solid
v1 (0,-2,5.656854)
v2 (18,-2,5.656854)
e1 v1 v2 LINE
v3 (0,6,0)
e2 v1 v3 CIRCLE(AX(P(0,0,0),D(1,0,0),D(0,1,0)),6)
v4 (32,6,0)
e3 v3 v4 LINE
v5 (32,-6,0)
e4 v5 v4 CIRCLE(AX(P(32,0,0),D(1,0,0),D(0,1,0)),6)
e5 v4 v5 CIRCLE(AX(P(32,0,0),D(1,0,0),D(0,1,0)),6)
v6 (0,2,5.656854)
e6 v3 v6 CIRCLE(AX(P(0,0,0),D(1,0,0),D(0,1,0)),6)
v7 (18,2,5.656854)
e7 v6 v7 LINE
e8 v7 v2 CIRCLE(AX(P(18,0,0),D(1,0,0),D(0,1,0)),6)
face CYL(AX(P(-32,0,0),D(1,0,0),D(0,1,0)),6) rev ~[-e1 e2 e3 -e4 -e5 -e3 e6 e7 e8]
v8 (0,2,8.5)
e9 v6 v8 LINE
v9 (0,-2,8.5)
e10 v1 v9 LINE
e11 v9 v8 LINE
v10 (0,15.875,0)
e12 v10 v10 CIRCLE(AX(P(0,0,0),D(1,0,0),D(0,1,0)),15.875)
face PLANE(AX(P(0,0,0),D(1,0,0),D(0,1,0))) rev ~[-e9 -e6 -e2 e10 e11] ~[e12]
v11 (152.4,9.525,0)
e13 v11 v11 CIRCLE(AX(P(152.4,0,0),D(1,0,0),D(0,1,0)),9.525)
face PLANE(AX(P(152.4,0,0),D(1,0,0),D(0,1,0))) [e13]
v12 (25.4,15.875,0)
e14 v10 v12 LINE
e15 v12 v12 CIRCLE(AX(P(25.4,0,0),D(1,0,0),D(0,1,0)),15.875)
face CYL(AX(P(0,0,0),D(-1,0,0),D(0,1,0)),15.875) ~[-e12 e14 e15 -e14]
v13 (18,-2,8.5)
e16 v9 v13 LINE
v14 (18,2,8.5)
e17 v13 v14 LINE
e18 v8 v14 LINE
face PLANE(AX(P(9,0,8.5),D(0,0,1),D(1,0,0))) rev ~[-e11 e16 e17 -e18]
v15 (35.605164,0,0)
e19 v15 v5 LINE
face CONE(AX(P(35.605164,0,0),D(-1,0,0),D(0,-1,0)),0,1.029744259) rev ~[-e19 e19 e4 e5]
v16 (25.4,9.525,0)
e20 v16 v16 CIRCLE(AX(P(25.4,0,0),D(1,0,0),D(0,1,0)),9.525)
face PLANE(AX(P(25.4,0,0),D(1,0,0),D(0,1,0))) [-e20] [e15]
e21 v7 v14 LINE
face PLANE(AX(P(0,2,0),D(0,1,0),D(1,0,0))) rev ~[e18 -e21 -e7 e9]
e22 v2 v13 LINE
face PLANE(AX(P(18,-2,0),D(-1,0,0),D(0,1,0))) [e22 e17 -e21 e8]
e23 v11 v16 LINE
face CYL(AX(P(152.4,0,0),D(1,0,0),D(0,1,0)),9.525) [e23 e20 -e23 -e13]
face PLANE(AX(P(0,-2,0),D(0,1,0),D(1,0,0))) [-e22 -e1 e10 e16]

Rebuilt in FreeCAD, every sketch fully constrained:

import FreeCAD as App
import Part
import Sketcher


def add_polygon(sketch, points):
    """Adds a closed chain of lines whose ends are joined by coincident constraints."""
    first, n = sketch.GeometryCount, len(points)
    for a, b in zip(points, points[1:] + points[:1]):
        sketch.addGeometry(Part.LineSegment(App.Vector(*a, 0), App.Vector(*b, 0)), False)
    for i in range(n):
        sketch.addConstraint(Sketcher.Constraint("Coincident", first + i, 2, first + (i + 1) % n, 1))

doc = App.newDocument("Part")
params = doc.addObject("Spreadsheet::Sheet", "Params")
for row, (alias, value) in enumerate([
    ("sketch1_diameter", "31.75 mm"),
    ("pad1_length", "152.4 mm"),
    ("sketch2_diameter", "12 mm"),
    ("hole_diameter", "12 mm"),
    ("hole_depth", "32 mm"),
    ("sketch3_width", "18 mm"),
    ("sketch3_height", "4 mm"),
    ("pocket1_length", "8.5 mm"),
    ("sketch4_diameter", "31.75 mm"),
    ("sketch4_diameter2", "19.05 mm"),
    ("pocket2_length", "127 mm"),
], start=1):
    params.set(f"A{row}", alias)
    params.set(f"B{row}", "=" + value)
    params.setAlias(f"B{row}", alias)

body = doc.addObject("PartDesign::Body", "Body")

# Sketch on YZ plane
sketch1 = body.newObject("Sketcher::SketchObject", "Sketch")
sketch1.AttachmentSupport = (doc.getObject("YZ_Plane"), [""])
sketch1.MapMode = "FlatFace"
sketch1.addGeometry(Part.Circle(App.Vector(0, 0, 0), App.Vector(0, 0, 1), 16), False)
sketch1.addConstraint(Sketcher.Constraint("Coincident", 0, 3, -1, 1))
sketch1.addConstraint(Sketcher.Constraint("Diameter", 0, 31.75))
sketch1.setExpression("Constraints[1]", "Params.sketch1_diameter")
pad1 = body.newObject("PartDesign::Pad", "Pad")
pad1.Profile = sketch1
pad1.setExpression("Length", "Params.pad1_length")

# Sketch on YZ plane
sketch2 = body.newObject("Sketcher::SketchObject", "Sketch001")
sketch2.AttachmentSupport = (doc.getObject("YZ_Plane"), [""])
sketch2.MapMode = "FlatFace"
sketch2.addGeometry(Part.Circle(App.Vector(0, 0, 0), App.Vector(0, 0, 1), 6), False)
sketch2.addConstraint(Sketcher.Constraint("Coincident", 0, 3, -1, 1))
sketch2.addConstraint(Sketcher.Constraint("Diameter", 0, 12.0))
sketch2.setExpression("Constraints[1]", "Params.sketch2_diameter")
doc.recompute()
hole = body.newObject("PartDesign::Hole", "Hole")
hole.Profile = sketch2
hole.ThreadType = "None"
hole.setExpression("Diameter", "Params.hole_diameter")
hole.DepthType = "Dimension"
hole.setExpression("Depth", "Params.hole_depth")
hole.DrillPoint = "Angled"
hole.DrillPointAngle = 118
hole.Reversed = True

# Sketch on XY plane
sketch3 = body.newObject("Sketcher::SketchObject", "Sketch002")
sketch3.AttachmentSupport = (doc.getObject("XY_Plane"), [""])
sketch3.MapMode = "FlatFace"
add_polygon(sketch3, [(0, 2), (0, -2), (18, -2), (18, 2)])  # lines 0-3
sketch3.addConstraint(Sketcher.Constraint("Vertical", 0))
sketch3.addConstraint(Sketcher.Constraint("Horizontal", 1))
sketch3.addConstraint(Sketcher.Constraint("Vertical", 2))
sketch3.addConstraint(Sketcher.Constraint("Horizontal", 3))
sketch3.addConstraint(Sketcher.Constraint("Symmetric", 0, 2, 3, 2, -1, 1))
sketch3.addConstraint(Sketcher.Constraint("DistanceX", 1, 1, 1, 2, 18.0))
sketch3.addConstraint(Sketcher.Constraint("DistanceY", 0, 2, 0, 1, 4.0))
sketch3.setExpression("Constraints[9]", "Params.sketch3_width")
sketch3.setExpression("Constraints[10]", "Params.sketch3_height")
pocket1 = body.newObject("PartDesign::Pocket", "Pocket")
pocket1.Profile = sketch3
pocket1.setExpression("Length", "Params.pocket1_length")
pocket1.Reversed = True

# Sketch on YZ plane
sketch4 = body.newObject("Sketcher::SketchObject", "Sketch003")
sketch4.AttachmentSupport = (doc.getObject("YZ_Plane"), [""])
sketch4.MapMode = "FlatFace"
sketch4.AttachmentOffset = App.Placement(App.Vector(0, 0, 152.4), App.Rotation())
sketch4.addGeometry(Part.Circle(App.Vector(0, 0, 0), App.Vector(0, 0, 1), 16), False)
sketch4.addGeometry(Part.Circle(App.Vector(0, 0, 0), App.Vector(0, 0, 1), 10), False)
sketch4.addConstraint(Sketcher.Constraint("Coincident", 0, 3, -1, 1))
sketch4.addConstraint(Sketcher.Constraint("Coincident", 1, 3, -1, 1))
sketch4.addConstraint(Sketcher.Constraint("Diameter", 0, 31.75))
sketch4.addConstraint(Sketcher.Constraint("Diameter", 1, 19.05))
sketch4.setExpression("Constraints[2]", "Params.sketch4_diameter")
sketch4.setExpression("Constraints[3]", "Params.sketch4_diameter2")
pocket2 = body.newObject("PartDesign::Pocket", "Pocket001")
pocket2.Profile = sketch4
pocket2.setExpression("Length", "Params.pocket2_length")

doc.recompute()
